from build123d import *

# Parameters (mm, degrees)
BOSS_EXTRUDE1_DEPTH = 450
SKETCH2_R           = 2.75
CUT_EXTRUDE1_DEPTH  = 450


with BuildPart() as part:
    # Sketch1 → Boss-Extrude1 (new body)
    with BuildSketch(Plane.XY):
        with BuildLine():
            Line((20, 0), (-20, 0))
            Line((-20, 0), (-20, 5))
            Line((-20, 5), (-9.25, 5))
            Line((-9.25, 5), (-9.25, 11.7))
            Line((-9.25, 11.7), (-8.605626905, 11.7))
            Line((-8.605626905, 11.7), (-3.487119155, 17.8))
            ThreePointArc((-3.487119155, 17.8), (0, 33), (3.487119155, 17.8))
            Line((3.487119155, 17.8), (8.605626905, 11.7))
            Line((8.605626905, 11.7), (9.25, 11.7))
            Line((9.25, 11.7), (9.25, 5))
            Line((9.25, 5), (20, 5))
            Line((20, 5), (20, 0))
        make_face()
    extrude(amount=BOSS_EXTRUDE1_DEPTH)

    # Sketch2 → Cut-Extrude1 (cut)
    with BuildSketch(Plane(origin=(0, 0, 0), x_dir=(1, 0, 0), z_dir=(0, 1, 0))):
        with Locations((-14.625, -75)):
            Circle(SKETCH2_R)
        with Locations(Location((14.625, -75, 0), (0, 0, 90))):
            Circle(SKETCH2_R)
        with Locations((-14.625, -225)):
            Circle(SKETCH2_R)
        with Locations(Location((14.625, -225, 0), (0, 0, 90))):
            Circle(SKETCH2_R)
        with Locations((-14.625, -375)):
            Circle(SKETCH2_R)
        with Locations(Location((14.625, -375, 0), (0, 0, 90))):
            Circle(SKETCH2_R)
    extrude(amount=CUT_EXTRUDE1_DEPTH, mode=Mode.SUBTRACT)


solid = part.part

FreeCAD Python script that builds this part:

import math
import FreeCAD as App
import Part
import Sketcher

V = App.Vector
Q = App.Units.Quantity

doc = App.newDocument("Part")
params = doc.addObject("Spreadsheet::Sheet", "Params")
for row, (alias, value) in enumerate([
    ("sketch1_radius", "8 mm"),
    ("sketch1_width", "40 mm"),
    ("sketch1_height", "5 mm"),
    ("sketch1_height2", "6.7 mm"),
    ("sketch1_width2", "10.75 mm"),
    ("pad1_length", "450 mm"),
    ("sketch2_diameter", "5.5 mm"),
    ("pocket1_length", "450 mm"),
], start=1):
    params.set(f"A{row}", alias)
    params.set(f"B{row}", "=" + value)
    params.setAlias(f"B{row}", alias)

body = doc.addObject("PartDesign::Body", "Body")

# Sketch on XY plane
sketch1 = doc.addObject("Sketcher::SketchObject", "Sketch")
body.addObject(sketch1)
sketch1.AttachmentSupport = (doc.XY_Plane, [""])
sketch1.MapMode = "FlatFace"
sketch1.addGeometry([
    Part.LineSegment(V(-20, 0, 0), V(20, 0, 0)),  # 0
    Part.LineSegment(V(20, 0, 0), V(20, 5, 0)),  # 1
    Part.LineSegment(V(20, 5, 0), V(9.2, 5, 0)),  # 2
    Part.LineSegment(V(9.2, 5, 0), V(9.2, 11.7, 0)),  # 3
    Part.LineSegment(V(9.2, 11.7, 0), V(8.6, 11.7, 0)),  # 4
    Part.LineSegment(V(8.6, 11.7, 0), V(3.5, 17.8, 0)),  # 5
    Part.ArcOfCircle(Part.Circle(V(0, 25, 0), V(0, 0, 1), 8), math.radians(-64), math.radians(244)),  # 6
    Part.LineSegment(V(-3.5, 17.8, 0), V(-8.6, 11.7, 0)),  # 7
    Part.LineSegment(V(-8.6, 11.7, 0), V(-9.2, 11.7, 0)),  # 8
    Part.LineSegment(V(-9.2, 11.7, 0), V(-9.2, 5, 0)),  # 9
    Part.LineSegment(V(-9.2, 5, 0), V(-20, 5, 0)),  # 10
    Part.LineSegment(V(-20, 5, 0), V(-20, 0, 0)),  # 11
], False)
sketch1.addConstraint([
    Sketcher.Constraint("Coincident", 0, 2, 1, 1),
    Sketcher.Constraint("Coincident", 1, 2, 2, 1),
    Sketcher.Constraint("Coincident", 2, 2, 3, 1),
    Sketcher.Constraint("Coincident", 3, 2, 4, 1),
    Sketcher.Constraint("Coincident", 4, 2, 5, 1),
    Sketcher.Constraint("Coincident", 5, 2, 6, 1),
    Sketcher.Constraint("Coincident", 6, 2, 7, 1),
    Sketcher.Constraint("Coincident", 7, 2, 8, 1),
    Sketcher.Constraint("Coincident", 8, 2, 9, 1),
    Sketcher.Constraint("Coincident", 9, 2, 10, 1),
    Sketcher.Constraint("Coincident", 10, 2, 11, 1),
    Sketcher.Constraint("Coincident", 11, 2, 0, 1),
    Sketcher.Constraint("Horizontal", 0),
    Sketcher.Constraint("Vertical", 1),
    Sketcher.Constraint("Horizontal", 2),
    Sketcher.Constraint("Vertical", 3),
    Sketcher.Constraint("Horizontal", 4),
    Sketcher.Constraint("Horizontal", 8),
    Sketcher.Constraint("Vertical", 9),
    Sketcher.Constraint("Horizontal", 10),
    Sketcher.Constraint("Vertical", 11),
    Sketcher.Constraint("Symmetric", 0, 2, 11, 2, -1, 1),
    Sketcher.Constraint("Symmetric", 5, 2, 6, 2, -2),
    Sketcher.Constraint("Symmetric", 4, 2, 7, 2, -2),
    Sketcher.Constraint("Symmetric", 2, 2, 9, 2, -2),
    Sketcher.Constraint("Radius", 6, Q("8 mm")),
    Sketcher.Constraint("DistanceX", 0, 1, 0, 2, Q("40 mm")),
    Sketcher.Constraint("DistanceY", 1, 1, 1, 2, Q("5 mm")),
    Sketcher.Constraint("Angle", 5, Q("130 deg")),
    Sketcher.Constraint("DistanceY", 3, 1, 3, 2, Q("6.7 mm")),
    Sketcher.Constraint("DistanceY", -1, 1, 6, 3, Q("25 mm")),
    Sketcher.Constraint("DistanceX", 2, 2, 2, 1, Q("10.75 mm")),
    Sketcher.Constraint("DistanceY", -1, 1, 5, 2, Q("17.8 mm")),
])
sketch1.setExpression("Constraints[25]", "Params.sketch1_radius")
sketch1.setExpression("Constraints[26]", "Params.sketch1_width")
sketch1.setExpression("Constraints[27]", "Params.sketch1_height")
sketch1.setExpression("Constraints[29]", "Params.sketch1_height2")
sketch1.setExpression("Constraints[31]", "Params.sketch1_width2")
pad1 = doc.addObject("PartDesign::Pad", "Pad")
body.addObject(pad1)
pad1.Profile = sketch1
pad1.setExpression("Length", "Params.pad1_length")

# Sketch on XZ plane
sketch2 = doc.addObject("Sketcher::SketchObject", "Sketch001")
body.addObject(sketch2)
sketch2.AttachmentSupport = (doc.XZ_Plane, [""])
sketch2.MapMode = "FlatFace"
sketch2.addGeometry([
    Part.Circle(V(-14.6, 75, 0), V(0, 0, 1), 2.8),  # 0
    Part.Circle(V(14.6, 75, 0), V(0, 0, 1), 2.8),  # 1
    Part.Circle(V(-14.6, 225, 0), V(0, 0, 1), 2.8),  # 2
    Part.Circle(V(14.6, 225, 0), V(0, 0, 1), 2.8),  # 3
    Part.Circle(V(-14.6, 375, 0), V(0, 0, 1), 2.8),  # 4
    Part.Circle(V(14.6, 375, 0), V(0, 0, 1), 2.8),  # 5
], False)
sketch2.addConstraint([
    Sketcher.Constraint("Equal", 0, 1),
    Sketcher.Constraint("Equal", 1, 2),
    Sketcher.Constraint("Equal", 2, 3),
    Sketcher.Constraint("Equal", 3, 4),
    Sketcher.Constraint("Equal", 4, 5),
    Sketcher.Constraint("Symmetric", 0, 3, 1, 3, -2),
    Sketcher.Constraint("Symmetric", 2, 3, 3, 3, -2),
    Sketcher.Constraint("Symmetric", 4, 3, 5, 3, -2),
    Sketcher.Constraint("Vertical", 0, 3, 2, 3),
    Sketcher.Constraint("Vertical", 2, 3, 4, 3),
    Sketcher.Constraint("Diameter", 0, Q("5.5 mm")),
    Sketcher.Constraint("DistanceY", -1, 1, 0, 3, Q("75 mm")),
    Sketcher.Constraint("DistanceY", -1, 1, 2, 3, Q("225 mm")),
    Sketcher.Constraint("DistanceY", -1, 1, 4, 3, Q("375 mm")),
    Sketcher.Constraint("DistanceX", 0, 3, 1, 3, Q("29.25 mm")),
])
sketch2.setExpression("Constraints[10]", "Params.sketch2_diameter")
pocket1 = doc.addObject("PartDesign::Pocket", "Pocket")
body.addObject(pocket1)
pocket1.Profile = sketch2
pocket1.setExpression("Length", "Params.pocket1_length")

doc.recompute()
